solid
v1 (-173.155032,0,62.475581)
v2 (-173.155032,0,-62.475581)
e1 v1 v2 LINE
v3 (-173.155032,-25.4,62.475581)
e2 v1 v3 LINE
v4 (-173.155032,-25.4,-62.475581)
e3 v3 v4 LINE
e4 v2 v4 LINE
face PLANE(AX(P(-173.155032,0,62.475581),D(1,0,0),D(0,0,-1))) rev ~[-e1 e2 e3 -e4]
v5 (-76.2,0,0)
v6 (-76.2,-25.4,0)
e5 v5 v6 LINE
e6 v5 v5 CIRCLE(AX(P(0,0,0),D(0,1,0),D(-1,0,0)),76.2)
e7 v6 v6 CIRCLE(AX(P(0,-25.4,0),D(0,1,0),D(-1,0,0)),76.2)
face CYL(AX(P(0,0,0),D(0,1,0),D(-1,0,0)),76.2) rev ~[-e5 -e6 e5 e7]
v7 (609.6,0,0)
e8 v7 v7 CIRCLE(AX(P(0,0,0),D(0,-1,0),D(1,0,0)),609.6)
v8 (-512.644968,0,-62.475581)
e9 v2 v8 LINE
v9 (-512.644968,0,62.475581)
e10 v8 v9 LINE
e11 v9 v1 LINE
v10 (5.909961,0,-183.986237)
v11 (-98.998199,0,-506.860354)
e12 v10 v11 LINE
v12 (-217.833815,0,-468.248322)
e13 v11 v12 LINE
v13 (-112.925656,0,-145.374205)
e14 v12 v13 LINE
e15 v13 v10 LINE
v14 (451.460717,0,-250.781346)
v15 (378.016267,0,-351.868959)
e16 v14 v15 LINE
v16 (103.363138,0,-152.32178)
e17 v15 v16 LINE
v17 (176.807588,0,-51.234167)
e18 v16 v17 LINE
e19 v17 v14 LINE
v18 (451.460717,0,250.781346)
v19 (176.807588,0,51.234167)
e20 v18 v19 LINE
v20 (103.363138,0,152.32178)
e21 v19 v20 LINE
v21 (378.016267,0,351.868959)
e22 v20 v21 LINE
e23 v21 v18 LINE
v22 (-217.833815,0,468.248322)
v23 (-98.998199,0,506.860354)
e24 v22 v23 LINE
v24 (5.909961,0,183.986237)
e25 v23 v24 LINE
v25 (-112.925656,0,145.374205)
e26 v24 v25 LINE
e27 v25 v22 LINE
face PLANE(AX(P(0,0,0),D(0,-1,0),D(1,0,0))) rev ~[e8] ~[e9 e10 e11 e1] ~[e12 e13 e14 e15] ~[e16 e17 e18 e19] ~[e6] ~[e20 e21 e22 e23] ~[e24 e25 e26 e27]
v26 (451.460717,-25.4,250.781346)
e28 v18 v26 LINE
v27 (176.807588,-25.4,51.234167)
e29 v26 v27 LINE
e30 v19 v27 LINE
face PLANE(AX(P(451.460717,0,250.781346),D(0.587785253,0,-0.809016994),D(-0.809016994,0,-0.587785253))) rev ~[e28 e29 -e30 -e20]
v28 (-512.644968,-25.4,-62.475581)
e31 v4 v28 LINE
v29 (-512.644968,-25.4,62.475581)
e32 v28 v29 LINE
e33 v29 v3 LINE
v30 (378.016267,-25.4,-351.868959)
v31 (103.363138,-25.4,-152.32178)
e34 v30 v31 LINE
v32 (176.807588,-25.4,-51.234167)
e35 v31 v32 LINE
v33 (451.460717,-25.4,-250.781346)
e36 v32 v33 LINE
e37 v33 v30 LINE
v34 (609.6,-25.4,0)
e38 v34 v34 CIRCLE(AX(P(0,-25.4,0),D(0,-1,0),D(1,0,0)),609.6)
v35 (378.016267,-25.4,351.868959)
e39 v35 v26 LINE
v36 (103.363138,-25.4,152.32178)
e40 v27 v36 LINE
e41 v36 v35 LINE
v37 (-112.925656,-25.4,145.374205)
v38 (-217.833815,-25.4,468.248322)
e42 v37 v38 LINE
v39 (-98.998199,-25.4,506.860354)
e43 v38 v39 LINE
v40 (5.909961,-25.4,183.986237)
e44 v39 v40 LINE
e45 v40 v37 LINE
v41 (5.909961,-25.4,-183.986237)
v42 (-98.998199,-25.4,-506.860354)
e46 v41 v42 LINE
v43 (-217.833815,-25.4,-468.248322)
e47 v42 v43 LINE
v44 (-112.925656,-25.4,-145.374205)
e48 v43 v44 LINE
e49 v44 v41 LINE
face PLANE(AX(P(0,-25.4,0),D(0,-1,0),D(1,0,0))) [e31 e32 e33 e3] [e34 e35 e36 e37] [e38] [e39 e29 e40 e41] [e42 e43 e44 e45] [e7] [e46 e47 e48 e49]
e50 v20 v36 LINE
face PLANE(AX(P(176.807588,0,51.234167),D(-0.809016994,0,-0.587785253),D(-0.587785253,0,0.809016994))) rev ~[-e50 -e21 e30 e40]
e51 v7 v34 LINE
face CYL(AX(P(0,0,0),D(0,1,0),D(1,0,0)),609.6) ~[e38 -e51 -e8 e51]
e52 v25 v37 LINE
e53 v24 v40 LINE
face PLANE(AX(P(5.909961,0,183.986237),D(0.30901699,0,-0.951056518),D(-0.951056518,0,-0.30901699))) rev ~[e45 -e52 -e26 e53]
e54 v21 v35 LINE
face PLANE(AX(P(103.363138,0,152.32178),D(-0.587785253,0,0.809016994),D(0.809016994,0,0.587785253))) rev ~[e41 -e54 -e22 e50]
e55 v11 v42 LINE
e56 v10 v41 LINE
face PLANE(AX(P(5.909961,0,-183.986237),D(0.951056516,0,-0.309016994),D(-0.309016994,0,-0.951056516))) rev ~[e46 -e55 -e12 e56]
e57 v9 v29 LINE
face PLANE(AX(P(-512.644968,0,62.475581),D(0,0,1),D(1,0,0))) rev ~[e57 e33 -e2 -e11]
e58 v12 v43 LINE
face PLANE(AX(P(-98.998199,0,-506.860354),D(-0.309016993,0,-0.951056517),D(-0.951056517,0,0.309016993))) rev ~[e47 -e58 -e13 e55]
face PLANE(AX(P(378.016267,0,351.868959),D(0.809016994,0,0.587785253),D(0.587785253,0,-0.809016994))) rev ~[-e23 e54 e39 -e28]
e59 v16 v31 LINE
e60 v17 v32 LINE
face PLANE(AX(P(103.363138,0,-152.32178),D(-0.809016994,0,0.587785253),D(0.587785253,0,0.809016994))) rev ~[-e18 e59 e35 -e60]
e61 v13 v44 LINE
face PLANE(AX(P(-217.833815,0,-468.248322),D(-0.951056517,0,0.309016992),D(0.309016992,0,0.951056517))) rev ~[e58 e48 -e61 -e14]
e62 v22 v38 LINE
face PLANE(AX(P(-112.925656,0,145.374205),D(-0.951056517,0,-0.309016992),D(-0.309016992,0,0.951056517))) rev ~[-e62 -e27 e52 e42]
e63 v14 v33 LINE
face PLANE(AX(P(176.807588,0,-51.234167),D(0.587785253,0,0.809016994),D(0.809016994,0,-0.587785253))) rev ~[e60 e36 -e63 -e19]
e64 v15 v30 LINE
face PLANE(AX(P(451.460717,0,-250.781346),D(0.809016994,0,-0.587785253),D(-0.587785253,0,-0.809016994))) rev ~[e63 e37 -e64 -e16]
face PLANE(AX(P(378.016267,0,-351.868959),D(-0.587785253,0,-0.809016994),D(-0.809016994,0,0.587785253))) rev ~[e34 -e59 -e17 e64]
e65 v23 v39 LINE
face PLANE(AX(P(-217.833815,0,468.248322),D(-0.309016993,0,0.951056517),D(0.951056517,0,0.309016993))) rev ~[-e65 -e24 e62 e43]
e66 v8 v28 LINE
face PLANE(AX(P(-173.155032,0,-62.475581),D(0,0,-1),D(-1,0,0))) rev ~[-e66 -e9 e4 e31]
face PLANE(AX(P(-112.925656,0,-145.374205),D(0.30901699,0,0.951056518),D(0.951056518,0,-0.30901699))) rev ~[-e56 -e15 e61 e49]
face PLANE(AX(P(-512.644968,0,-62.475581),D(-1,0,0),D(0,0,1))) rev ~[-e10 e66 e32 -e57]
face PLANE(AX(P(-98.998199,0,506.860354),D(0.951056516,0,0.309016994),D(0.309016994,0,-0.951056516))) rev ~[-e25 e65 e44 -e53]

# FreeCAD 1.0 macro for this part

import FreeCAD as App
import Part
import Sketcher

V = App.Vector
Q = App.Units.Quantity

doc = App.newDocument("Part")
body = doc.addObject("PartDesign::Body", "Body")

# Sketch on XZ plane
sketch1 = doc.addObject("Sketcher::SketchObject", "Sketch")
body.addObject(sketch1)
sketch1.AttachmentSupport = (doc.XZ_Plane, [""])
sketch1.MapMode = "FlatFace"
sketch1.addGeometry(Part.Circle(V(0, 0, 0), V(0, 0, 1), 610), False)
sketch1.addGeometry(Part.LineSegment(V(6, -184, 0), V(-99, -507, 0)), False)
sketch1.addGeometry(Part.LineSegment(V(-99, -507, 0), V(-218, -468, 0)), False)
sketch1.addGeometry(Part.LineSegment(V(-218, -468, 0), V(-113, -145, 0)), False)
sketch1.addGeometry(Part.LineSegment(V(-113, -145, 0), V(6, -184, 0)), False)
sketch1.addGeometry(Part.Circle(V(0, 0, 0), V(0, 0, 1), 76), False)
sketch1.addGeometry(Part.LineSegment(V(177, -51, 0), V(451, -251, 0)), False)
sketch1.addGeometry(Part.LineSegment(V(451, -251, 0), V(378, -352, 0)), False)
sketch1.addGeometry(Part.LineSegment(V(378, -352, 0), V(103, -152, 0)), False)
sketch1.addGeometry(Part.LineSegment(V(103, -152, 0), V(177, -51, 0)), False)
sketch1.addGeometry(Part.LineSegment(V(-173, -62, 0), V(-513, -62, 0)), False)
sketch1.addGeometry(Part.LineSegment(V(-513, -62, 0), V(-513, 62, 0)), False)
sketch1.addGeometry(Part.LineSegment(V(-513, 62, 0), V(-173, 62, 0)), False)
sketch1.addGeometry(Part.LineSegment(V(-173, 62, 0), V(-173, -62, 0)), False)
sketch1.addGeometry(Part.LineSegment(V(-113, 145, 0), V(-218, 468, 0)), False)
sketch1.addGeometry(Part.LineSegment(V(-218, 468, 0), V(-99, 507, 0)), False)
sketch1.addGeometry(Part.LineSegment(V(-99, 507, 0), V(6, 184, 0)), False)
sketch1.addGeometry(Part.LineSegment(V(6, 184, 0), V(-113, 145, 0)), False)
sketch1.addGeometry(Part.LineSegment(V(103, 152, 0), V(378, 352, 0)), False)
sketch1.addGeometry(Part.LineSegment(V(378, 352, 0), V(451, 251, 0)), False)
sketch1.addGeometry(Part.LineSegment(V(451, 251, 0), V(177, 51, 0)), False)
sketch1.addGeometry(Part.LineSegment(V(177, 51, 0), V(103, 152, 0)), False)
sketch1.addConstraint(Sketcher.Constraint("Coincident", 1, 2, 2, 1))
sketch1.addConstraint(Sketcher.Constraint("Coincident", 2, 2, 3, 1))
sketch1.addConstraint(Sketcher.Constraint("Coincident", 3, 2, 4, 1))
sketch1.addConstraint(Sketcher.Constraint("Coincident", 4, 2, 1, 1))
sketch1.addConstraint(Sketcher.Constraint("Coincident", 6, 2, 7, 1))
sketch1.addConstraint(Sketcher.Constraint("Coincident", 7, 2, 8, 1))
sketch1.addConstraint(Sketcher.Constraint("Coincident", 8, 2, 9, 1))
sketch1.addConstraint(Sketcher.Constraint("Coincident", 9, 2, 6, 1))
sketch1.addConstraint(Sketcher.Constraint("Coincident", 10, 2, 11, 1))
sketch1.addConstraint(Sketcher.Constraint("Coincident", 11, 2, 12, 1))
sketch1.addConstraint(Sketcher.Constraint("Coincident", 12, 2, 13, 1))
sketch1.addConstraint(Sketcher.Constraint("Coincident", 13, 2, 10, 1))
sketch1.addConstraint(Sketcher.Constraint("Coincident", 14, 2, 15, 1))
sketch1.addConstraint(Sketcher.Constraint("Coincident", 15, 2, 16, 1))
sketch1.addConstraint(Sketcher.Constraint("Coincident", 16, 2, 17, 1))
sketch1.addConstraint(Sketcher.Constraint("Coincident", 17, 2, 14, 1))
sketch1.addConstraint(Sketcher.Constraint("Coincident", 18, 2, 19, 1))
sketch1.addConstraint(Sketcher.Constraint("Coincident", 19, 2, 20, 1))
sketch1.addConstraint(Sketcher.Constraint("Coincident", 20, 2, 21, 1))
sketch1.addConstraint(Sketcher.Constraint("Coincident", 21, 2, 18, 1))
sketch1.addConstraint(Sketcher.Constraint("Horizontal", 10))
sketch1.addConstraint(Sketcher.Constraint("Vertical", 11))
sketch1.addConstraint(Sketcher.Constraint("Horizontal", 12))
sketch1.addConstraint(Sketcher.Constraint("Vertical", 13))
sketch1.addConstraint(Sketcher.Constraint("Coincident", 0, 3, -1, 1))
sketch1.addConstraint(Sketcher.Constraint("Coincident", 5, 3, -1, 1))
sketch1.addConstraint(Sketcher.Constraint("Symmetric", 2, 2, 14, 2, -1))
sketch1.addConstraint(Sketcher.Constraint("Symmetric", 1, 2, 15, 2, -1))
sketch1.addConstraint(Sketcher.Constraint("Symmetric", 4, 2, 16, 2, -1))
sketch1.addConstraint(Sketcher.Constraint("Symmetric", 3, 2, 17, 2, -1))
sketch1.addConstraint(Sketcher.Constraint("Symmetric", 7, 2, 18, 2, -1))
sketch1.addConstraint(Sketcher.Constraint("Symmetric", 6, 2, 19, 2, -1))
sketch1.addConstraint(Sketcher.Constraint("Symmetric", 9, 2, 20, 2, -1))
sketch1.addConstraint(Sketcher.Constraint("Symmetric", 8, 2, 21, 2, -1))
sketch1.addConstraint(Sketcher.Constraint("Perpendicular", 1, 2))
sketch1.addConstraint(Sketcher.Constraint("Perpendicular", 2, 3))
sketch1.addConstraint(Sketcher.Constraint("Perpendicular", 3, 4))
sketch1.addConstraint(Sketcher.Constraint("Perpendicular", 6, 7))
sketch1.addConstraint(Sketcher.Constraint("Perpendicular", 7, 8))
sketch1.addConstraint(Sketcher.Constraint("Perpendicular", 8, 9))
sketch1.addConstraint(Sketcher.Constraint("Equal", 3, 6))
sketch1.addConstraint(Sketcher.Constraint("Equal", 4, 7))
sketch1.addConstraint(Sketcher.Constraint("Diameter", 0, Q("48 in")))
sketch1.addConstraint(Sketcher.Constraint("Diameter", 5, Q("6 in")))
sketch1.addConstraint(Sketcher.Constraint("Angle", 1, Q("-108 deg")))
sketch1.addConstraint(Sketcher.Constraint("Angle", 6, Q("-36 deg")))
sketch1.addConstraint(Sketcher.Constraint("DistanceY", 11, 1, 11, 2, Q("124.951162 mm")))
sketch1.addConstraint(Sketcher.Constraint("DistanceX", 1, 2, -1, 1, Q("98.998199 mm")))
sketch1.addConstraint(Sketcher.Constraint("Distance", 2, Q("124.951161 mm")))
sketch1.addConstraint(Sketcher.Constraint("DistanceX", 10, 2, 10, 1, Q("339.489936 mm")))
sketch1.addConstraint(Sketcher.Constraint("DistanceY", 2, 2, -1, 1, Q("468.248322 mm")))
sketch1.addConstraint(Sketcher.Constraint("DistanceX", -1, 1, 4, 2, Q("5.909961 mm")))
sketch1.addConstraint(Sketcher.Constraint("DistanceY", 7, 2, -1, 1, Q("351.868959 mm")))
sketch1.addConstraint(Sketcher.Constraint("DistanceX", -1, 1, 8, 2, Q("103.363138 mm")))
sketch1.addConstraint(Sketcher.Constraint("DistanceX", 10, 2, -1, 1, Q("512.644968 mm")))
sketch1.addConstraint(Sketcher.Constraint("DistanceY", 10, 2, -1, 1, Q("62.475581 mm")))
pad1 = doc.addObject("PartDesign::Pad", "Pad")
body.addObject(pad1)
pad1.Profile = sketch1
pad1.Length = Q("1 in")

doc.recompute()
